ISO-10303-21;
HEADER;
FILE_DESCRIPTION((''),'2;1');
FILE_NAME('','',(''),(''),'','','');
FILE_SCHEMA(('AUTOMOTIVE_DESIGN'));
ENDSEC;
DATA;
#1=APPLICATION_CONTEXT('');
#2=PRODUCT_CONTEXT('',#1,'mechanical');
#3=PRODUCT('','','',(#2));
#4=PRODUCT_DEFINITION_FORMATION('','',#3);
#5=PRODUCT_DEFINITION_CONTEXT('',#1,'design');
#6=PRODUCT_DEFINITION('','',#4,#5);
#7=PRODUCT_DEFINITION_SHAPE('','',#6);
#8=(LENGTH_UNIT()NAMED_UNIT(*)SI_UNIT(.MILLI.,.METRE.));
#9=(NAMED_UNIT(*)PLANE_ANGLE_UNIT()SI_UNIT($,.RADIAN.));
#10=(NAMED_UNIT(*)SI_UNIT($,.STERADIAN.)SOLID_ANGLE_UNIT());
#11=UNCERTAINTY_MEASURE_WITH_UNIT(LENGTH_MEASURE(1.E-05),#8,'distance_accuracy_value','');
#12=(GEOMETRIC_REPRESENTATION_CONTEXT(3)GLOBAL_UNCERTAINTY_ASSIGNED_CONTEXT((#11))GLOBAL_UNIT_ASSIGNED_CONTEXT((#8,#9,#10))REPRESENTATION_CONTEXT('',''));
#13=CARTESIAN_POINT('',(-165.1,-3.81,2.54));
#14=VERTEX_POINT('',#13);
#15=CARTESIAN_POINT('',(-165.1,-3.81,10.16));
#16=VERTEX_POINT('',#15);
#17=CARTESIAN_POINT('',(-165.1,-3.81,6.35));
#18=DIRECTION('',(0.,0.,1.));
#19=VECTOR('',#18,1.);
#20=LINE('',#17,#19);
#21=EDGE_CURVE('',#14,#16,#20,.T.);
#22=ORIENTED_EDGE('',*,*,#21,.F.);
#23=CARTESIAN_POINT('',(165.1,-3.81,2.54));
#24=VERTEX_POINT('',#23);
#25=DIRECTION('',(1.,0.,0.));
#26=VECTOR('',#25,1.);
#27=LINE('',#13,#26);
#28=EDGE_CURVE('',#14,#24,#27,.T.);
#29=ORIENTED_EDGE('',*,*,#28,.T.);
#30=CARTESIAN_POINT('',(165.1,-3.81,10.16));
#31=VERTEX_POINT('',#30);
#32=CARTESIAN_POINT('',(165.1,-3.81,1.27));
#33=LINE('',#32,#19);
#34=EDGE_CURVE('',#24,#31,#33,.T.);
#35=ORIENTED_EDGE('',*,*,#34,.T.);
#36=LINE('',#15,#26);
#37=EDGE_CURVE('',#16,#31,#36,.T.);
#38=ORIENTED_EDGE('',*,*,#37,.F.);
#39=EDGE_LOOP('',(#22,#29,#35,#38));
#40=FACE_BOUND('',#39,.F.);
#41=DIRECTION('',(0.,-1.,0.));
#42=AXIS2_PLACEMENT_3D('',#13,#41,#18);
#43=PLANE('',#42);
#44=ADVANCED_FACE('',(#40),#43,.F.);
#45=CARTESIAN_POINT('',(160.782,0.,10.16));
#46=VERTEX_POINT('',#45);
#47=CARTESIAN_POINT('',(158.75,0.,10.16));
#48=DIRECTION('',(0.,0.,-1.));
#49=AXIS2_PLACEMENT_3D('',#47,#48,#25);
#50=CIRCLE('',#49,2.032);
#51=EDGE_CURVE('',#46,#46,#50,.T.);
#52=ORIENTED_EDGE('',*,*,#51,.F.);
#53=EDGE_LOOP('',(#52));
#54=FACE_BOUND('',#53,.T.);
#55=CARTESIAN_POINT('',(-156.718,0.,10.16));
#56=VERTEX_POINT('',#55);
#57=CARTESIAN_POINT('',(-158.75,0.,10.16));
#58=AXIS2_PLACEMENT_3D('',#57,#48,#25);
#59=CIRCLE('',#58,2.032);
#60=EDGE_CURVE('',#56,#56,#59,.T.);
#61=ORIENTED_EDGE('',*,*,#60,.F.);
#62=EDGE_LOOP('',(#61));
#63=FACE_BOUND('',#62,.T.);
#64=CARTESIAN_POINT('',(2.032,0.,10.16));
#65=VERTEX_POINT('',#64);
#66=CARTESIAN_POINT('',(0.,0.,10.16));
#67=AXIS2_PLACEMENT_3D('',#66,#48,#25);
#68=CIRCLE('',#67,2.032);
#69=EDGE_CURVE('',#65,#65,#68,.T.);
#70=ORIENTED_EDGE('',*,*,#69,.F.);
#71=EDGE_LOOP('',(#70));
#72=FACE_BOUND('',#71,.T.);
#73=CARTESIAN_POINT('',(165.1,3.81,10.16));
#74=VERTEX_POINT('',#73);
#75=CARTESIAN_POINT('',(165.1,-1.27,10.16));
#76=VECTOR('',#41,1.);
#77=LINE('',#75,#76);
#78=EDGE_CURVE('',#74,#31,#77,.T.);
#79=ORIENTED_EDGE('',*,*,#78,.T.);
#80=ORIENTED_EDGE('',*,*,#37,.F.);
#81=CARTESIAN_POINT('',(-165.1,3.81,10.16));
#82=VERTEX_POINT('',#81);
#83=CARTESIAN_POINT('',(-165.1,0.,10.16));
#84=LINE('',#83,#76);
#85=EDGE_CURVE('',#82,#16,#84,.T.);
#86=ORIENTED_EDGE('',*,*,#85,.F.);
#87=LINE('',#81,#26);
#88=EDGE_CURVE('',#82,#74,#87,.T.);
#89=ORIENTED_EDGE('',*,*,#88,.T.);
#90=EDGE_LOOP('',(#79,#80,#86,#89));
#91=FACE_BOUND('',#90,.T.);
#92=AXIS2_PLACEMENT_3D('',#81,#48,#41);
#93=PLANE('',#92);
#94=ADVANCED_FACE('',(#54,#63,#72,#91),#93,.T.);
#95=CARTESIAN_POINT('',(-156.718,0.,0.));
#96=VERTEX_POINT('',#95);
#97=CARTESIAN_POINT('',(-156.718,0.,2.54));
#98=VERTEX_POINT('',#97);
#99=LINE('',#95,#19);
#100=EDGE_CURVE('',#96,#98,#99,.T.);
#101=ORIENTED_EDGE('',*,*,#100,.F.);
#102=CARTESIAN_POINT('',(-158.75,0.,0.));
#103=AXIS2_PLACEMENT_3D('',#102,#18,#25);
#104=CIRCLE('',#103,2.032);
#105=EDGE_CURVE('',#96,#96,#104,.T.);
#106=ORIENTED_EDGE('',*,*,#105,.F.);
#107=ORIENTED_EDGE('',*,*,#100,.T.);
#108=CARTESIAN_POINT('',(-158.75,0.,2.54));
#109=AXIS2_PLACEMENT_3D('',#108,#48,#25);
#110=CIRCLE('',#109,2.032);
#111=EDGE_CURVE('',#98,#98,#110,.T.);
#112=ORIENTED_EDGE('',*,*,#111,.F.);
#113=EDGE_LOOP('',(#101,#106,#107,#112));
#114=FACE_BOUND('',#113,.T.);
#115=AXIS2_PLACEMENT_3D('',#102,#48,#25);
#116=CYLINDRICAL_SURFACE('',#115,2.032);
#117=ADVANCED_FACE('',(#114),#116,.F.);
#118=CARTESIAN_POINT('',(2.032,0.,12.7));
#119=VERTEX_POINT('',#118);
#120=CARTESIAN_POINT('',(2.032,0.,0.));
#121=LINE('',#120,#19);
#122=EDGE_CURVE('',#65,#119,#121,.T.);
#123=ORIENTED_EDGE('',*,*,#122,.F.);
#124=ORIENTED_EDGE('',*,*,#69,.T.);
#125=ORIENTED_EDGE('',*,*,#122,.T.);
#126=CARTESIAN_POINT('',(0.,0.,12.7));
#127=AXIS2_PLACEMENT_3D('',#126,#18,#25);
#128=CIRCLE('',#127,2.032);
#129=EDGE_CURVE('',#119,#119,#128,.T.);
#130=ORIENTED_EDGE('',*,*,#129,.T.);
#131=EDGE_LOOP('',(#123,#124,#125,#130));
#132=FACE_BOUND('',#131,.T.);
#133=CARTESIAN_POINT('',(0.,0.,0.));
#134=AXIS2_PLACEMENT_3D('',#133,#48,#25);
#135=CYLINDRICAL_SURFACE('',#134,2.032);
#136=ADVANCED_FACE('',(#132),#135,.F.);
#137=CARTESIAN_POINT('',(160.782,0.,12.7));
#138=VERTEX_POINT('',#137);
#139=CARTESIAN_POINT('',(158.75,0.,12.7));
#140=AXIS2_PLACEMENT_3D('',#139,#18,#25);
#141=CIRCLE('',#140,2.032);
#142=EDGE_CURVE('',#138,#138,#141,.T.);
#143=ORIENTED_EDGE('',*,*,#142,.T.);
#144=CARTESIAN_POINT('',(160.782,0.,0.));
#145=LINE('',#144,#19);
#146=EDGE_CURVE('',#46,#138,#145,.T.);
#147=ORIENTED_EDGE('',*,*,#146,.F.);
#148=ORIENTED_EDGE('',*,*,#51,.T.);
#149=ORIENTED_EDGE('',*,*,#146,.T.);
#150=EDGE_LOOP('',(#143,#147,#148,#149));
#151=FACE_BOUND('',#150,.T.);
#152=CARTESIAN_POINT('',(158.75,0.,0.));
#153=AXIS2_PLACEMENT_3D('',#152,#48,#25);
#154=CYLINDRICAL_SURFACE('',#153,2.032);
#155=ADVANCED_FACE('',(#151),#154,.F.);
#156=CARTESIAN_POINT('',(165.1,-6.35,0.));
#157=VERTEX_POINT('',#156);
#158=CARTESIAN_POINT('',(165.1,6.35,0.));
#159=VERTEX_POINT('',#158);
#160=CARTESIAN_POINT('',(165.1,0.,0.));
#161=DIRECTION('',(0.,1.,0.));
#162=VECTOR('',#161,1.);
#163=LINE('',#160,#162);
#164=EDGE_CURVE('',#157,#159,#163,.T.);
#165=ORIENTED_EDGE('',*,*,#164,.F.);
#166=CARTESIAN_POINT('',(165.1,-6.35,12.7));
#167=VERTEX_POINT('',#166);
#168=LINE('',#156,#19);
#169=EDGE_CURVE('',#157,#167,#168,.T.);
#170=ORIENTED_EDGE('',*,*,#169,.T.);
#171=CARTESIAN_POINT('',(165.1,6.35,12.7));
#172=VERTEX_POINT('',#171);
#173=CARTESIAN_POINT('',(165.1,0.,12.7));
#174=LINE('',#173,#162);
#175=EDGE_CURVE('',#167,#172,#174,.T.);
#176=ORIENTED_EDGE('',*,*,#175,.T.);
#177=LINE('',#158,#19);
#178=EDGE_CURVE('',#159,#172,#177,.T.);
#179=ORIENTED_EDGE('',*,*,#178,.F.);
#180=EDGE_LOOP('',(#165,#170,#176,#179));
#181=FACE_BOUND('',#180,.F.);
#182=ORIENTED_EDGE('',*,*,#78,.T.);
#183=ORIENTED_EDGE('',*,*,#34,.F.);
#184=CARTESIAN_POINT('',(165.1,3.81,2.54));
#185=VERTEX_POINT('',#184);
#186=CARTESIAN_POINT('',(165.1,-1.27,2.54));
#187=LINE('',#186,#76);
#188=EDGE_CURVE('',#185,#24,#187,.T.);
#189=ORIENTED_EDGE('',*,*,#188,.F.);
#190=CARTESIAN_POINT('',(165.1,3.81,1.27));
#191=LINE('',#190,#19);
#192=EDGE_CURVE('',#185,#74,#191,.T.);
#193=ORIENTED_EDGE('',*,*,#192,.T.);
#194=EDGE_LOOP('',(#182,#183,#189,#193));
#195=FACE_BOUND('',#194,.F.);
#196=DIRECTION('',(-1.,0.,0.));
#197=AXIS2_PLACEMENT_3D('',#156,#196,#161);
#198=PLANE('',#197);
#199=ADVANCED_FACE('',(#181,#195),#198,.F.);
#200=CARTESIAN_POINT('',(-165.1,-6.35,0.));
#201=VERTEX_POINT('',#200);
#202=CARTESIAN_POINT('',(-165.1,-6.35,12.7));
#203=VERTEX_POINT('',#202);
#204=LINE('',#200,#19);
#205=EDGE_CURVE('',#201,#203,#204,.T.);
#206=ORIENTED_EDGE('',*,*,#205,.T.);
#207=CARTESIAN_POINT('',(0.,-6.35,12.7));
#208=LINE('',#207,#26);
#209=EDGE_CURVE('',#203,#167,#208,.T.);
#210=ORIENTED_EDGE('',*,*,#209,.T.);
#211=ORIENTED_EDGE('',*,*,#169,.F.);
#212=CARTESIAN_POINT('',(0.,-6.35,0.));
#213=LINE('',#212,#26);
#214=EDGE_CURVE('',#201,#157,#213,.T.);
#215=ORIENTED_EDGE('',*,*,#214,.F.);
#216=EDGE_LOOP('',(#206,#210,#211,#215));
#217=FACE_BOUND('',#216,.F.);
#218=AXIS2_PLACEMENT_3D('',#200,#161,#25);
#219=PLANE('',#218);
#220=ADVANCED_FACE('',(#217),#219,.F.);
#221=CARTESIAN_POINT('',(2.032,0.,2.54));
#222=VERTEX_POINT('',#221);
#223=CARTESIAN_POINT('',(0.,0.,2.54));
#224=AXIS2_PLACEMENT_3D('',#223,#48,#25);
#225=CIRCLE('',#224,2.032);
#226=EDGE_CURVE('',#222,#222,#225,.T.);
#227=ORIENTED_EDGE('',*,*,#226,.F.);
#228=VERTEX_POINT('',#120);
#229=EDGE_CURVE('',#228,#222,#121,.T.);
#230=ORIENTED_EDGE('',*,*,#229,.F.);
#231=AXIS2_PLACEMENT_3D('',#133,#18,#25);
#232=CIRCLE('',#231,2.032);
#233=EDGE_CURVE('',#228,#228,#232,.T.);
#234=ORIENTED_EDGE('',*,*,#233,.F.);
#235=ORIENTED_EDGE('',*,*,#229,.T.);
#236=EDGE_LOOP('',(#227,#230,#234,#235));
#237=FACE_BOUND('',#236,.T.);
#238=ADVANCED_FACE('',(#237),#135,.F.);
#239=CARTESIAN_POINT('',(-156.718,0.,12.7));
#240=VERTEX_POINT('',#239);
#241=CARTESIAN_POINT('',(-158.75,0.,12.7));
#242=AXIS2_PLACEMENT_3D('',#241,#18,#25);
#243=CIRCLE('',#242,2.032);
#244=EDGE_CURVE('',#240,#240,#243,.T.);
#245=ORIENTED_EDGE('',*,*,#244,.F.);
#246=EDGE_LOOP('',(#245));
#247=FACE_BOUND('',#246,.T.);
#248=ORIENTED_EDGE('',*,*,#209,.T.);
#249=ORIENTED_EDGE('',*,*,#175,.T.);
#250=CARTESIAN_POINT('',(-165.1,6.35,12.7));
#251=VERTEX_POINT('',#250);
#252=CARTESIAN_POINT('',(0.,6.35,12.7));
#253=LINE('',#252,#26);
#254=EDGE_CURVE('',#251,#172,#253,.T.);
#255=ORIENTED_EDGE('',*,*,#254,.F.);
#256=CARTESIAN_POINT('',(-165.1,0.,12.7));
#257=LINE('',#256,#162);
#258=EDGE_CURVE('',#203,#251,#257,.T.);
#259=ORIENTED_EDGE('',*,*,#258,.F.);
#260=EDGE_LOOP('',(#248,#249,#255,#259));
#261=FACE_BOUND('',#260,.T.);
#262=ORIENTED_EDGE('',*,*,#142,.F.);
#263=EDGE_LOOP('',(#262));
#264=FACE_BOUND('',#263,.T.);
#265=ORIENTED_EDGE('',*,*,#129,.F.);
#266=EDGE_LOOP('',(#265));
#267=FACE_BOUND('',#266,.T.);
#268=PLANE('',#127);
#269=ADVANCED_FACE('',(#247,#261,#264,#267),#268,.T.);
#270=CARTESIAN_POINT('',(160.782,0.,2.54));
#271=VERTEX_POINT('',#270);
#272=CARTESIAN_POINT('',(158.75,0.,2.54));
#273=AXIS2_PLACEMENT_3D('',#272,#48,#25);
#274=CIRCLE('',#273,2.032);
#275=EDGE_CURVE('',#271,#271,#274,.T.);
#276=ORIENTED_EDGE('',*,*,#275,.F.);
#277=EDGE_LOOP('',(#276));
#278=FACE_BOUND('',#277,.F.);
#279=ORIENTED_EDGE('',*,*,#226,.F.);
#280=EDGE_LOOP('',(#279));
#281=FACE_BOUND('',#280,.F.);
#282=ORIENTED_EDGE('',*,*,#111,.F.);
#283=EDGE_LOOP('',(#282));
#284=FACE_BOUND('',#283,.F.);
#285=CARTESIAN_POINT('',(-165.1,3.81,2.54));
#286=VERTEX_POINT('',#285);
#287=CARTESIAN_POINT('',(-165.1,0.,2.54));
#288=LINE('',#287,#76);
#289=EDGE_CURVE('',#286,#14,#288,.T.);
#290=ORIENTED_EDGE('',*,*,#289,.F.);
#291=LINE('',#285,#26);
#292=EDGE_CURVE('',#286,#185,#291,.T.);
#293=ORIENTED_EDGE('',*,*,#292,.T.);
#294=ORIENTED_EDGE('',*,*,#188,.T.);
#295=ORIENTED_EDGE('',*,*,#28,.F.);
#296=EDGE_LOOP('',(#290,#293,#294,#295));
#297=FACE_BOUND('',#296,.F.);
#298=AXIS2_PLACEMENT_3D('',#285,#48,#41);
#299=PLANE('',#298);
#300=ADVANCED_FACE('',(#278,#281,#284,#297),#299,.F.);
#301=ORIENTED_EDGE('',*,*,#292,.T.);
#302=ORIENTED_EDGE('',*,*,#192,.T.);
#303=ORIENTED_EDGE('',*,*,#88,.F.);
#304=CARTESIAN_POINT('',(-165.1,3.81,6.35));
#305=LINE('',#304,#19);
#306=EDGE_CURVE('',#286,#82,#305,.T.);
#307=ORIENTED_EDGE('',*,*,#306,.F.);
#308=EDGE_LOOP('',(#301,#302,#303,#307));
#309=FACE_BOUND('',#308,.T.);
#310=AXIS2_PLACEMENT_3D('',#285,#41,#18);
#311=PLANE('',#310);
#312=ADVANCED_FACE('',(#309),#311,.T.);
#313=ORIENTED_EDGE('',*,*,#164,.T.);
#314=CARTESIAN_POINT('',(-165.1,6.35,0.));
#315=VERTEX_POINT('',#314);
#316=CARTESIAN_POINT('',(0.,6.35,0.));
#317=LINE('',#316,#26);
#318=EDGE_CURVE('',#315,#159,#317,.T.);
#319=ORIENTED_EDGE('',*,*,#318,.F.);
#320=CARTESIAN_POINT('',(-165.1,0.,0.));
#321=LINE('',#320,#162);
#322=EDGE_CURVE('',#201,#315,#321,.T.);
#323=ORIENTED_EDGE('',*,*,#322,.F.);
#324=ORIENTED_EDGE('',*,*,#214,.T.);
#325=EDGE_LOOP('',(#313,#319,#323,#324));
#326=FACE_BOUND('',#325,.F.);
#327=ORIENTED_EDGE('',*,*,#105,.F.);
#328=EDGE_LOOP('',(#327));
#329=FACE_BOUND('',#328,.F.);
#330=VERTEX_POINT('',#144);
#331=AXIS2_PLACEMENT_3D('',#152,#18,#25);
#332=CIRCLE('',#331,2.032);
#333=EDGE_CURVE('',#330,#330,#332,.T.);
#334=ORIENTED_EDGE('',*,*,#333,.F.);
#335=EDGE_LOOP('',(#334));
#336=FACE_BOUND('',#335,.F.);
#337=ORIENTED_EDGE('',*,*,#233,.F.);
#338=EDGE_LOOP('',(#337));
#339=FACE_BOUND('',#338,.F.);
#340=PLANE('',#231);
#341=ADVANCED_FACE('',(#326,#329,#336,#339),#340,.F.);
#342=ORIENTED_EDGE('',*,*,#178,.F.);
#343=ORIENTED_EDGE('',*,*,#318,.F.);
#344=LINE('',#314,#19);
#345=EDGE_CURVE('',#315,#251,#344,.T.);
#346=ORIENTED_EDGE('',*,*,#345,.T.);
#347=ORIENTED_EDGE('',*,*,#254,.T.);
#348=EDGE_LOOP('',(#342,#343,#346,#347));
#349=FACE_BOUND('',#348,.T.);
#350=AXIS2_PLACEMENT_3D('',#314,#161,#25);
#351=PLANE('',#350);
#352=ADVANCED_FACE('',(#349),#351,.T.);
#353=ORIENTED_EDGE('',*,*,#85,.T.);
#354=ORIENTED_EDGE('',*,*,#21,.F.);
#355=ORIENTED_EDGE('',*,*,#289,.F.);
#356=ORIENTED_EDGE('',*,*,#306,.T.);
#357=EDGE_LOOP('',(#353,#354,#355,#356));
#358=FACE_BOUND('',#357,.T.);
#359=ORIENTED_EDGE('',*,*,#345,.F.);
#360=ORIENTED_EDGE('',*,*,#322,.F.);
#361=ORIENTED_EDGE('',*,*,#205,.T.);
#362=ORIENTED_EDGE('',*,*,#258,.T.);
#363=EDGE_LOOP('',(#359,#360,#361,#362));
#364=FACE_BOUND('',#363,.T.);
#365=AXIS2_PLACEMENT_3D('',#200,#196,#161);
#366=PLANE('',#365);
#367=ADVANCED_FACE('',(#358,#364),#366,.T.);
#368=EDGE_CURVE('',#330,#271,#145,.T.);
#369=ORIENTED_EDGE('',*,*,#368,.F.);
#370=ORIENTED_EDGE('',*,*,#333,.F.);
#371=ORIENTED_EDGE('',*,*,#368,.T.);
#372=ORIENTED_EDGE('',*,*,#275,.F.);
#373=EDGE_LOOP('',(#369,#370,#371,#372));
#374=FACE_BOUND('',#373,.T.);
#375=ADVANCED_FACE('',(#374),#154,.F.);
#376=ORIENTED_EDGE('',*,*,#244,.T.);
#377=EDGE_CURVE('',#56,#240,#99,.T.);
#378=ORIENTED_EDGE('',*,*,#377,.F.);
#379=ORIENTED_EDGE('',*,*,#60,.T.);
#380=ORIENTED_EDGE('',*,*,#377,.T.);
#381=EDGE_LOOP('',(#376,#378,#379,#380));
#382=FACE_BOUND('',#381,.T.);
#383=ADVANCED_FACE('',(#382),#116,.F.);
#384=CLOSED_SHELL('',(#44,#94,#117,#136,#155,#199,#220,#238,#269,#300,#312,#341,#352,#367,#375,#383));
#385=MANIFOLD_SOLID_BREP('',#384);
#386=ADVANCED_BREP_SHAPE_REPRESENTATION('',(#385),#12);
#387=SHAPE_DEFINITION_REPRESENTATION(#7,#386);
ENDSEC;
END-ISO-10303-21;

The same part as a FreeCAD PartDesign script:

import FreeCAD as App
import Part
import Sketcher

V = App.Vector
Q = App.Units.Quantity


def add_polygon(sketch, points):
    """Adds a closed chain of lines whose ends are joined by coincident constraints."""
    first, n = sketch.GeometryCount, len(points)
    for a, b in zip(points, points[1:] + points[:1]):
        sketch.addGeometry(Part.LineSegment(App.Vector(*a, 0), App.Vector(*b, 0)), False)
    for i in range(n):
        sketch.addConstraint(Sketcher.Constraint("Coincident", first + i, 2, first + (i + 1) % n, 1))

doc = App.newDocument("Part")
params = doc.addObject("Spreadsheet::Sheet", "Params")
for row, (alias, value) in enumerate([
    ("sketch1_diameter", "0.16 in"),
    ("sketch1_width", "13 in"),
    ("sketch1_height", "0.5 in"),
    ("pad1_length", "0.5 in"),
    ("sketch2_width", "0.3 in"),
    ("pocket1_length", "16.7 in"),
], start=1):
    params.set(f"A{row}", alias)
    params.set(f"B{row}", "=" + value)
    params.setAlias(f"B{row}", alias)

body = doc.addObject("PartDesign::Body", "Body")

# Sketch on XY plane
sketch1 = doc.addObject("Sketcher::SketchObject", "Sketch")
body.addObject(sketch1)
sketch1.AttachmentSupport = (doc.XY_Plane, [""])
sketch1.MapMode = "FlatFace"
add_polygon(sketch1, [(-165.1, 6.3), (-165.1, -6.3), (165.1, -6.3), (165.1, 6.3)])  # lines 0-3
sketch1.addGeometry(Part.Circle(V(-158.8, 0, 0), V(0, 0, 1), 2), False)  # 4
sketch1.addGeometry(Part.Circle(V(0, 0, 0), V(0, 0, 1), 2), False)  # 5
sketch1.addGeometry(Part.Circle(V(158.8, 0, 0), V(0, 0, 1), 2), False)  # 6
sketch1.addConstraint([
    Sketcher.Constraint("Vertical", 0),
    Sketcher.Constraint("Horizontal", 1),
    Sketcher.Constraint("Vertical", 2),
    Sketcher.Constraint("Horizontal", 3),
    Sketcher.Constraint("Coincident", 5, 3, -1, 1),
    Sketcher.Constraint("Equal", 4, 5),
    Sketcher.Constraint("Equal", 5, 6),
    Sketcher.Constraint("Symmetric", 4, 3, 6, 3, -1, 1),
    Sketcher.Constraint("Symmetric", 0, 2, 2, 2, -1, 1),
    Sketcher.Constraint("PointOnObject", 4, 3, -1),
    Sketcher.Constraint("Diameter", 4, Q("0.16 in")),
    Sketcher.Constraint("DistanceX", 1, 1, 1, 2, Q("13 in")),
    Sketcher.Constraint("DistanceY", 0, 2, 0, 1, Q("0.5 in")),
    Sketcher.Constraint("DistanceX", 4, 3, 6, 3, Q("12.5 in")),
])
sketch1.setExpression("Constraints[14]", "Params.sketch1_diameter")
sketch1.setExpression("Constraints[15]", "Params.sketch1_width")
sketch1.setExpression("Constraints[16]", "Params.sketch1_height")
pad1 = doc.addObject("PartDesign::Pad", "Pad")
body.addObject(pad1)
pad1.Profile = sketch1
pad1.setExpression("Length", "Params.pad1_length")

# Sketch on YZ plane
sketch2 = doc.addObject("Sketcher::SketchObject", "Sketch001")
body.addObject(sketch2)
sketch2.AttachmentSupport = (doc.YZ_Plane, [""])
sketch2.MapMode = "FlatFace"
sketch2.AttachmentOffset = App.Placement(V(0, 0, -6.5 * 25.4), App.Rotation())
add_polygon(sketch2, [(4, 10), (4, 3), (-4, 3), (-4, 10)])  # lines 0-3
sketch2.addConstraint([
    Sketcher.Constraint("Vertical", 0),
    Sketcher.Constraint("Horizontal", 1),
    Sketcher.Constraint("Vertical", 2),
    Sketcher.Constraint("Horizontal", 3),
    Sketcher.Constraint("Equal", 3, 0),
    Sketcher.Constraint("DistanceX", 1, 2, 1, 1, Q("0.3 in")),
    Sketcher.Constraint("DistanceY", -1, 1, 0, 2, Q("0.1 in")),
    Sketcher.Constraint("DistanceX", -1, 1, 0, 2, Q("0.15 in")),
])
sketch2.setExpression("Constraints[9]", "Params.sketch2_width")
pocket1 = doc.addObject("PartDesign::Pocket", "Pocket")
body.addObject(pocket1)
pocket1.Profile = sketch2
pocket1.setExpression("Length", "Params.pocket1_length")
pocket1.Reversed = True

doc.recompute()
